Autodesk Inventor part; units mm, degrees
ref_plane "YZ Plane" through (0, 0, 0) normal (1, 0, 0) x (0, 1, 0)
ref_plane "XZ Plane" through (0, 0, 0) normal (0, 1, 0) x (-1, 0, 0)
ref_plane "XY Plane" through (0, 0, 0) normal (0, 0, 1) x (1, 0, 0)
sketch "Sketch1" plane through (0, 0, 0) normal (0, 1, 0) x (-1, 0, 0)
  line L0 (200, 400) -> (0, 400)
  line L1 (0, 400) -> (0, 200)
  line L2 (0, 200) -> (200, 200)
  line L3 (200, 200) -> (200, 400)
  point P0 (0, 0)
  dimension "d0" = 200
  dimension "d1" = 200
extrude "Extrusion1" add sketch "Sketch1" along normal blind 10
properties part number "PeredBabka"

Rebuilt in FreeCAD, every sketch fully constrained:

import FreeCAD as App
import Part
import Sketcher
Q = App.Units.Quantity

doc = App.newDocument("Part")
body = doc.addObject("PartDesign::Body", "Body")

# Sketch on XZ plane
sketch1 = doc.addObject("Sketcher::SketchObject", "Sketch")
body.addObject(sketch1)
sketch1.AttachmentSupport = (doc.XZ_Plane, [""])
sketch1.MapMode = "FlatFace"
sketch1.addGeometry(Part.LineSegment(App.Vector(-200, 200, 0), App.Vector(-200, 400, 0)), False)
sketch1.addGeometry(Part.LineSegment(App.Vector(-200, 400, 0), App.Vector(0, 400, 0)), False)
sketch1.addGeometry(Part.LineSegment(App.Vector(0, 400, 0), App.Vector(0, 200, 0)), False)
sketch1.addGeometry(Part.LineSegment(App.Vector(0, 200, 0), App.Vector(-200, 200, 0)), False)
sketch1.addConstraint(Sketcher.Constraint("Coincident", 0, 2, 1, 1))
sketch1.addConstraint(Sketcher.Constraint("Coincident", 1, 2, 2, 1))
sketch1.addConstraint(Sketcher.Constraint("Coincident", 2, 2, 3, 1))
sketch1.addConstraint(Sketcher.Constraint("Coincident", 3, 2, 0, 1))
sketch1.addConstraint(Sketcher.Constraint("Vertical", 0))
sketch1.addConstraint(Sketcher.Constraint("Horizontal", 1))
sketch1.addConstraint(Sketcher.Constraint("Vertical", 2))
sketch1.addConstraint(Sketcher.Constraint("Horizontal", 3))
sketch1.addConstraint(Sketcher.Constraint("PointOnObject", 1, 2, -2))
sketch1.addConstraint(Sketcher.Constraint("Equal", 3, 0))
sketch1.addConstraint(Sketcher.Constraint("DistanceX", 1, 1, 1, 2, Q("200 mm")))
sketch1.addConstraint(Sketcher.Constraint("DistanceY", -1, 1, 2, 2, Q("200 mm")))
pad1 = doc.addObject("PartDesign::Pad", "Pad")
body.addObject(pad1)
pad1.Profile = sketch1
pad1.Length = 10
pad1.Reversed = True

doc.recompute()
